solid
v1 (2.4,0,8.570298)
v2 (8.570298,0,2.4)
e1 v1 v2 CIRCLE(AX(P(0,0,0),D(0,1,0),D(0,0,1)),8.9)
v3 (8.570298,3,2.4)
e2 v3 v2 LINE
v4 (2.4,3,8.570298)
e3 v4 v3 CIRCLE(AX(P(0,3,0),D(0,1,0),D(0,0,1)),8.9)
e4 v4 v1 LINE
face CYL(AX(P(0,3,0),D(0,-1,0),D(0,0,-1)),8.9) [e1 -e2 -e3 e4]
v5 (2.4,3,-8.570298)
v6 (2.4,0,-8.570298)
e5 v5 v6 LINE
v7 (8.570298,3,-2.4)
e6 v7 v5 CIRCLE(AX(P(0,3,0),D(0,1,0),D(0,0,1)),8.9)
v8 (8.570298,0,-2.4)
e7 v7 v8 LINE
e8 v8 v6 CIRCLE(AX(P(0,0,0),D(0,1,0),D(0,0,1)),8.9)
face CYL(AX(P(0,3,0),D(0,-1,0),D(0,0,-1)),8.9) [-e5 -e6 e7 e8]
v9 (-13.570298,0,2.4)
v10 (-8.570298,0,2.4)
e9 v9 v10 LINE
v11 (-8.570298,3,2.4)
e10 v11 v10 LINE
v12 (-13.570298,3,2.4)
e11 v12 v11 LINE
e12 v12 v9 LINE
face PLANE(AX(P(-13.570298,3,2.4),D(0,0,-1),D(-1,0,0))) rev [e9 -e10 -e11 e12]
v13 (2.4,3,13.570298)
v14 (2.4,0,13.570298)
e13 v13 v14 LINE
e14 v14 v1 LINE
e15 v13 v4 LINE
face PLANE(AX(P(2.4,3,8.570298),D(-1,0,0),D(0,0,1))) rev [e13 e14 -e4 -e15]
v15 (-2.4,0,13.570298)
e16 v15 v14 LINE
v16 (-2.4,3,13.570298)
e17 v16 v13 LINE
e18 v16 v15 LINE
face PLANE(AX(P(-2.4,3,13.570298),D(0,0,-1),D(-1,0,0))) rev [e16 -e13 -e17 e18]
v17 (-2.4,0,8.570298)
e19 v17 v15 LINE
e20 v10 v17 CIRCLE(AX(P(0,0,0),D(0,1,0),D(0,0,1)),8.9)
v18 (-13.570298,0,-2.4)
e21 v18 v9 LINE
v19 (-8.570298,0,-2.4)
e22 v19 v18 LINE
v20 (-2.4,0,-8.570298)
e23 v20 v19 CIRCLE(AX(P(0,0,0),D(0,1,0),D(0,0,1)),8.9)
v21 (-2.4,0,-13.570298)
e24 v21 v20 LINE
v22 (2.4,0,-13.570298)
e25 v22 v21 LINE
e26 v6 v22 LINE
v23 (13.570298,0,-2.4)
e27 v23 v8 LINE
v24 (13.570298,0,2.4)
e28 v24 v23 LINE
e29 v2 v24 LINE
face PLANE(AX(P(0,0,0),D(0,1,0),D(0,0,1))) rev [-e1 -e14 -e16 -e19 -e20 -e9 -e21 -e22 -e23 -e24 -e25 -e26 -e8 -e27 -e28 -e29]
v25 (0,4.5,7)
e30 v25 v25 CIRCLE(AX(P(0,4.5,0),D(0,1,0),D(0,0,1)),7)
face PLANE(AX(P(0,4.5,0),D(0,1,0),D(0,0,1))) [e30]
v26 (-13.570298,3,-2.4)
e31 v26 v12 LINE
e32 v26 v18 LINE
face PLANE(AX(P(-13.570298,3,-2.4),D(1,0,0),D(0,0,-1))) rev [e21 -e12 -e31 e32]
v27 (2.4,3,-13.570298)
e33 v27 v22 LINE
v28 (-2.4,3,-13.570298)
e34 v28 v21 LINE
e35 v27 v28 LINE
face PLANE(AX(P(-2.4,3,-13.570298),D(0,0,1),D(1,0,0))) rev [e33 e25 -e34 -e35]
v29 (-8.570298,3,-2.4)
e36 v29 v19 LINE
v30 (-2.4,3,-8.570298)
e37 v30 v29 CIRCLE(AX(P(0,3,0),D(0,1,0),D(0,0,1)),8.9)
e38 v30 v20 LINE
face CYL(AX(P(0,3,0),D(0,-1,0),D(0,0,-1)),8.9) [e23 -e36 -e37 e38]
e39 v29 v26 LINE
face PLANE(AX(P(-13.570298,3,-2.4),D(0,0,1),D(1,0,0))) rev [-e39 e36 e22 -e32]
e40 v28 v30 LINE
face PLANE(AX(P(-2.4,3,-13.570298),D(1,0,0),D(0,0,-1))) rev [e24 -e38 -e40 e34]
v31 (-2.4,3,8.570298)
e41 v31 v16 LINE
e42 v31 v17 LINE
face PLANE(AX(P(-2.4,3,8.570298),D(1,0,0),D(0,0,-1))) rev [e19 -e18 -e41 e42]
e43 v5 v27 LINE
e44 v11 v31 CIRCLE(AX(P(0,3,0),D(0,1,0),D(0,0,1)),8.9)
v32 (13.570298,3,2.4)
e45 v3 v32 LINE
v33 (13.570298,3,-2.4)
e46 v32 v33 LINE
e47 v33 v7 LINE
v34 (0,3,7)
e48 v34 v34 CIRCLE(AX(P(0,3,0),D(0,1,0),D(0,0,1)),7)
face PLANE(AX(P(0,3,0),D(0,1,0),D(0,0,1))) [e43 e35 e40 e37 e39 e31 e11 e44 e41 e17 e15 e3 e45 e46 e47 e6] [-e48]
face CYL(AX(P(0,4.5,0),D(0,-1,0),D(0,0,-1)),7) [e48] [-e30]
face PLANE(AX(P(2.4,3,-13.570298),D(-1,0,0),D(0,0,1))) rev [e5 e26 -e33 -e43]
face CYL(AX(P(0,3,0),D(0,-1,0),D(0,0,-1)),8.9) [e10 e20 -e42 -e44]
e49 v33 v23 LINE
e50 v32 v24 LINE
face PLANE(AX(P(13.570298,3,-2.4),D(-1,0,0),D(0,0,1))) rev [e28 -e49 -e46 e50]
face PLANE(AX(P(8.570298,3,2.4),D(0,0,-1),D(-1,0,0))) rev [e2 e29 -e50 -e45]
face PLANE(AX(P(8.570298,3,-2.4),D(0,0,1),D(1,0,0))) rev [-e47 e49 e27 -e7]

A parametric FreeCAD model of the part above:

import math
import FreeCAD as App
import Part
import Sketcher

doc = App.newDocument("Part")
body = doc.addObject("PartDesign::Body", "Body")

sketch1 = body.newObject("Sketcher::SketchObject", "Sketch")
sketch1.AttachmentSupport = (doc.getObject("XZ_Plane"), [""])
sketch1.MapMode = "FlatFace"
sketch1.addGeometry(Part.LineSegment(App.Vector(-8.570298, -2.4, 0), App.Vector(-13.570298, -2.4, 0)), False)
sketch1.addGeometry(Part.LineSegment(App.Vector(-13.570298, -2.4, 0), App.Vector(-13.570298, 2.4, 0)), False)
sketch1.addGeometry(Part.LineSegment(App.Vector(-13.570298, 2.4, 0), App.Vector(-8.570298, 2.4, 0)), False)
sketch1.addGeometry(Part.ArcOfCircle(Part.Circle(App.Vector(0, 0, 0), App.Vector(0, 0, 1), 8.9), math.radians(105.64421), math.radians(164.35579)), False)
sketch1.addGeometry(Part.LineSegment(App.Vector(-2.4, 8.570298, 0), App.Vector(-2.4, 13.570298, 0)), False)
sketch1.addGeometry(Part.LineSegment(App.Vector(-2.4, 13.570298, 0), App.Vector(2.4, 13.570298, 0)), False)
sketch1.addGeometry(Part.LineSegment(App.Vector(2.4, 13.570298, 0), App.Vector(2.4, 8.570298, 0)), False)
sketch1.addGeometry(Part.ArcOfCircle(Part.Circle(App.Vector(0, 0, 0), App.Vector(0, 0, 1), 8.9), math.radians(15.64421), math.radians(74.35579)), False)
sketch1.addGeometry(Part.LineSegment(App.Vector(8.570298, 2.4, 0), App.Vector(13.570298, 2.4, 0)), False)
sketch1.addGeometry(Part.LineSegment(App.Vector(13.570298, 2.4, 0), App.Vector(13.570298, -2.4, 0)), False)
sketch1.addGeometry(Part.LineSegment(App.Vector(13.570298, -2.4, 0), App.Vector(8.570298, -2.4, 0)), False)
sketch1.addGeometry(Part.ArcOfCircle(Part.Circle(App.Vector(0, 0, 0), App.Vector(0, 0, 1), 8.9), math.radians(-74.35579), math.radians(-15.64421)), False)
sketch1.addGeometry(Part.LineSegment(App.Vector(2.4, -8.570298, 0), App.Vector(2.4, -13.570298, 0)), False)
sketch1.addGeometry(Part.LineSegment(App.Vector(2.4, -13.570298, 0), App.Vector(-2.4, -13.570298, 0)), False)
sketch1.addGeometry(Part.LineSegment(App.Vector(-2.4, -13.570298, 0), App.Vector(-2.4, -8.570298, 0)), False)
sketch1.addGeometry(Part.ArcOfCircle(Part.Circle(App.Vector(0, 0, 0), App.Vector(0, 0, 1), 8.9), math.radians(-164.35579), math.radians(-105.64421)), False)
sketch1.addConstraint(Sketcher.Constraint("Coincident", 0, 2, 1, 1))
sketch1.addConstraint(Sketcher.Constraint("Coincident", 1, 2, 2, 1))
sketch1.addConstraint(Sketcher.Constraint("Coincident", 2, 2, 3, 2))
sketch1.addConstraint(Sketcher.Constraint("Coincident", 3, 1, 4, 1))
sketch1.addConstraint(Sketcher.Constraint("Coincident", 4, 2, 5, 1))
sketch1.addConstraint(Sketcher.Constraint("Coincident", 5, 2, 6, 1))
sketch1.addConstraint(Sketcher.Constraint("Coincident", 6, 2, 7, 2))
sketch1.addConstraint(Sketcher.Constraint("Coincident", 7, 1, 8, 1))
sketch1.addConstraint(Sketcher.Constraint("Coincident", 8, 2, 9, 1))
sketch1.addConstraint(Sketcher.Constraint("Coincident", 9, 2, 10, 1))
sketch1.addConstraint(Sketcher.Constraint("Coincident", 10, 2, 11, 2))
sketch1.addConstraint(Sketcher.Constraint("Coincident", 11, 1, 12, 1))
sketch1.addConstraint(Sketcher.Constraint("Coincident", 12, 2, 13, 1))
sketch1.addConstraint(Sketcher.Constraint("Coincident", 13, 2, 14, 1))
sketch1.addConstraint(Sketcher.Constraint("Coincident", 14, 2, 15, 2))
sketch1.addConstraint(Sketcher.Constraint("Coincident", 15, 1, 0, 1))
sketch1.addConstraint(Sketcher.Constraint("Horizontal", 0))
sketch1.addConstraint(Sketcher.Constraint("Vertical", 1))
sketch1.addConstraint(Sketcher.Constraint("Horizontal", 2))
sketch1.addConstraint(Sketcher.Constraint("Vertical", 4))
sketch1.addConstraint(Sketcher.Constraint("Horizontal", 5))
sketch1.addConstraint(Sketcher.Constraint("Vertical", 6))
sketch1.addConstraint(Sketcher.Constraint("Horizontal", 8))
sketch1.addConstraint(Sketcher.Constraint("Vertical", 9))
sketch1.addConstraint(Sketcher.Constraint("Horizontal", 10))
sketch1.addConstraint(Sketcher.Constraint("Vertical", 12))
sketch1.addConstraint(Sketcher.Constraint("Horizontal", 13))
sketch1.addConstraint(Sketcher.Constraint("Vertical", 14))
sketch1.addConstraint(Sketcher.Constraint("Coincident", 3, 3, -1, 1))
sketch1.addConstraint(Sketcher.Constraint("Coincident", 7, 3, -1, 1))
sketch1.addConstraint(Sketcher.Constraint("Coincident", 11, 3, -1, 1))
sketch1.addConstraint(Sketcher.Constraint("Coincident", 15, 3, -1, 1))
sketch1.addConstraint(Sketcher.Constraint("Equal", 3, 7))
sketch1.addConstraint(Sketcher.Constraint("Equal", 7, 11))
sketch1.addConstraint(Sketcher.Constraint("Equal", 11, 15))
sketch1.addConstraint(Sketcher.Constraint("Symmetric", 0, 2, 8, 2, -1, 1))
sketch1.addConstraint(Sketcher.Constraint("Symmetric", 4, 2, 12, 2, -1, 1))
sketch1.addConstraint(Sketcher.Constraint("Horizontal", 3, 1, 6, 2))
sketch1.addConstraint(Sketcher.Constraint("Horizontal", 2, 2, 7, 1))
sketch1.addConstraint(Sketcher.Constraint("Horizontal", 0, 2, 9, 2))
sketch1.addConstraint(Sketcher.Constraint("Horizontal", 11, 1, 14, 2))
sketch1.addConstraint(Sketcher.Constraint("Equal", 13, 1))
sketch1.addConstraint(Sketcher.Constraint("Equal", 10, 4))
sketch1.addConstraint(Sketcher.Constraint("Radius", 3, 8.9))
sketch1.addConstraint(Sketcher.Constraint("DistanceX", 0, 2, 0, 1, 5.0))
sketch1.addConstraint(Sketcher.Constraint("DistanceX", 5, 1, 5, 2, 4.8))
pad1 = body.newObject("PartDesign::Pad", "Pad")
pad1.Profile = sketch1
pad1.Length = 3
pad1.Reversed = True

sketch2 = body.newObject("Sketcher::SketchObject", "Sketch001")
sketch2.AttachmentSupport = (doc.getObject("XZ_Plane"), [""])
sketch2.MapMode = "FlatFace"
sketch2.AttachmentOffset = App.Placement(App.Vector(0, 0, -3), App.Rotation())
sketch2.addGeometry(Part.Circle(App.Vector(0, 0, 0), App.Vector(0, 0, 1), 7), False)
sketch2.addConstraint(Sketcher.Constraint("Coincident", 0, 3, -1, 1))
sketch2.addConstraint(Sketcher.Constraint("Diameter", 0, 14.0))
pad2 = body.newObject("PartDesign::Pad", "Pad001")
pad2.Profile = sketch2
pad2.Length = 1.5
pad2.Reversed = True

doc.recompute()
